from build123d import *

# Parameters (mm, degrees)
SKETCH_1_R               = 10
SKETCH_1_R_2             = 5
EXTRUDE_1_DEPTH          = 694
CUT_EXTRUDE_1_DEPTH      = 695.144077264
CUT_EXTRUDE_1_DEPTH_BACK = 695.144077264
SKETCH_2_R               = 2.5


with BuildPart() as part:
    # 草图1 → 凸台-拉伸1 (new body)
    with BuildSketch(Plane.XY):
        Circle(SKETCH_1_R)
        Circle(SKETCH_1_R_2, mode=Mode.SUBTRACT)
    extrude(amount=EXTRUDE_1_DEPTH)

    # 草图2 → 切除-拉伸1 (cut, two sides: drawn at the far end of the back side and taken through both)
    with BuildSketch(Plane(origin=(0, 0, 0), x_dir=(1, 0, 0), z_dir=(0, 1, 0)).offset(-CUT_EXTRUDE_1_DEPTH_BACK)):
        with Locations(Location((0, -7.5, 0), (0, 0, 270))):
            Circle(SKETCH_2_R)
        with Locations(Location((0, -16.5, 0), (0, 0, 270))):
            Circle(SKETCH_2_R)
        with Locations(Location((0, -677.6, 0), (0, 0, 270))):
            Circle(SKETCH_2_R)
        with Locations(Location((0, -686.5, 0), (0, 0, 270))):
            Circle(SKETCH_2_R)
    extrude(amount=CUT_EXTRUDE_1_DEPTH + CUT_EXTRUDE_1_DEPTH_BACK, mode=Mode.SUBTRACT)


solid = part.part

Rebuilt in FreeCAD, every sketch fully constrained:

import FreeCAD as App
import Part
import Sketcher
Q = App.Units.Quantity

doc = App.newDocument("Part")
body = doc.addObject("PartDesign::Body", "Body")

# Sketch on XY plane
sketch1 = body.newObject("Sketcher::SketchObject", "Sketch")
sketch1.AttachmentSupport = (doc.getObject("XY_Plane"), [""])
sketch1.MapMode = "FlatFace"
sketch1.addGeometry([
    Part.Circle(App.Vector(0, 0, 0), App.Vector(0, 0, 1), 10),
    Part.Circle(App.Vector(0, 0, 0), App.Vector(0, 0, 1), 5),
], False)
sketch1.addConstraint([
    Sketcher.Constraint("Coincident", 0, 3, -1, 1),
    Sketcher.Constraint("Coincident", 1, 3, -1, 1),
    Sketcher.Constraint("Diameter", 0, Q("20 mm")),
    Sketcher.Constraint("Diameter", 1, Q("10 mm")),
])
pad1 = body.newObject("PartDesign::Pad", "Pad")
pad1.Profile = sketch1
pad1.Length = 694

# Sketch on XZ plane
sketch2 = body.newObject("Sketcher::SketchObject", "Sketch001")
sketch2.AttachmentSupport = (doc.getObject("XZ_Plane"), [""])
sketch2.MapMode = "FlatFace"
sketch2.addGeometry([
    Part.Circle(App.Vector(0, 7.5, 0), App.Vector(0, 0, 1), 2.5),
    Part.Circle(App.Vector(0, 16.5, 0), App.Vector(0, 0, 1), 2.5),
    Part.Circle(App.Vector(0, 677.6, 0), App.Vector(0, 0, 1), 2.5),
    Part.Circle(App.Vector(0, 686.5, 0), App.Vector(0, 0, 1), 2.5),
], False)
sketch2.addConstraint([
    Sketcher.Constraint("Equal", 0, 1),
    Sketcher.Constraint("Equal", 1, 2),
    Sketcher.Constraint("Equal", 2, 3),
    Sketcher.Constraint("PointOnObject", 0, 3, -2),
    Sketcher.Constraint("PointOnObject", 1, 3, -2),
    Sketcher.Constraint("PointOnObject", 2, 3, -2),
    Sketcher.Constraint("PointOnObject", 3, 3, -2),
    Sketcher.Constraint("Diameter", 0, Q("5 mm")),
    Sketcher.Constraint("DistanceY", 0, 3, 1, 3, Q("9 mm")),
    Sketcher.Constraint("DistanceY", 1, 3, 3, 3, Q("670 mm")),
    Sketcher.Constraint("DistanceY", -1, 1, 0, 3, Q("7.5 mm")),
    Sketcher.Constraint("DistanceY", -1, 1, 2, 3, Q("677.6 mm")),
])
pocket1 = body.newObject("PartDesign::Pocket", "Pocket")
pocket1.Profile = sketch2
pocket1.Type = "ThroughAll"
pocket1.Midplane = True

doc.recompute()
